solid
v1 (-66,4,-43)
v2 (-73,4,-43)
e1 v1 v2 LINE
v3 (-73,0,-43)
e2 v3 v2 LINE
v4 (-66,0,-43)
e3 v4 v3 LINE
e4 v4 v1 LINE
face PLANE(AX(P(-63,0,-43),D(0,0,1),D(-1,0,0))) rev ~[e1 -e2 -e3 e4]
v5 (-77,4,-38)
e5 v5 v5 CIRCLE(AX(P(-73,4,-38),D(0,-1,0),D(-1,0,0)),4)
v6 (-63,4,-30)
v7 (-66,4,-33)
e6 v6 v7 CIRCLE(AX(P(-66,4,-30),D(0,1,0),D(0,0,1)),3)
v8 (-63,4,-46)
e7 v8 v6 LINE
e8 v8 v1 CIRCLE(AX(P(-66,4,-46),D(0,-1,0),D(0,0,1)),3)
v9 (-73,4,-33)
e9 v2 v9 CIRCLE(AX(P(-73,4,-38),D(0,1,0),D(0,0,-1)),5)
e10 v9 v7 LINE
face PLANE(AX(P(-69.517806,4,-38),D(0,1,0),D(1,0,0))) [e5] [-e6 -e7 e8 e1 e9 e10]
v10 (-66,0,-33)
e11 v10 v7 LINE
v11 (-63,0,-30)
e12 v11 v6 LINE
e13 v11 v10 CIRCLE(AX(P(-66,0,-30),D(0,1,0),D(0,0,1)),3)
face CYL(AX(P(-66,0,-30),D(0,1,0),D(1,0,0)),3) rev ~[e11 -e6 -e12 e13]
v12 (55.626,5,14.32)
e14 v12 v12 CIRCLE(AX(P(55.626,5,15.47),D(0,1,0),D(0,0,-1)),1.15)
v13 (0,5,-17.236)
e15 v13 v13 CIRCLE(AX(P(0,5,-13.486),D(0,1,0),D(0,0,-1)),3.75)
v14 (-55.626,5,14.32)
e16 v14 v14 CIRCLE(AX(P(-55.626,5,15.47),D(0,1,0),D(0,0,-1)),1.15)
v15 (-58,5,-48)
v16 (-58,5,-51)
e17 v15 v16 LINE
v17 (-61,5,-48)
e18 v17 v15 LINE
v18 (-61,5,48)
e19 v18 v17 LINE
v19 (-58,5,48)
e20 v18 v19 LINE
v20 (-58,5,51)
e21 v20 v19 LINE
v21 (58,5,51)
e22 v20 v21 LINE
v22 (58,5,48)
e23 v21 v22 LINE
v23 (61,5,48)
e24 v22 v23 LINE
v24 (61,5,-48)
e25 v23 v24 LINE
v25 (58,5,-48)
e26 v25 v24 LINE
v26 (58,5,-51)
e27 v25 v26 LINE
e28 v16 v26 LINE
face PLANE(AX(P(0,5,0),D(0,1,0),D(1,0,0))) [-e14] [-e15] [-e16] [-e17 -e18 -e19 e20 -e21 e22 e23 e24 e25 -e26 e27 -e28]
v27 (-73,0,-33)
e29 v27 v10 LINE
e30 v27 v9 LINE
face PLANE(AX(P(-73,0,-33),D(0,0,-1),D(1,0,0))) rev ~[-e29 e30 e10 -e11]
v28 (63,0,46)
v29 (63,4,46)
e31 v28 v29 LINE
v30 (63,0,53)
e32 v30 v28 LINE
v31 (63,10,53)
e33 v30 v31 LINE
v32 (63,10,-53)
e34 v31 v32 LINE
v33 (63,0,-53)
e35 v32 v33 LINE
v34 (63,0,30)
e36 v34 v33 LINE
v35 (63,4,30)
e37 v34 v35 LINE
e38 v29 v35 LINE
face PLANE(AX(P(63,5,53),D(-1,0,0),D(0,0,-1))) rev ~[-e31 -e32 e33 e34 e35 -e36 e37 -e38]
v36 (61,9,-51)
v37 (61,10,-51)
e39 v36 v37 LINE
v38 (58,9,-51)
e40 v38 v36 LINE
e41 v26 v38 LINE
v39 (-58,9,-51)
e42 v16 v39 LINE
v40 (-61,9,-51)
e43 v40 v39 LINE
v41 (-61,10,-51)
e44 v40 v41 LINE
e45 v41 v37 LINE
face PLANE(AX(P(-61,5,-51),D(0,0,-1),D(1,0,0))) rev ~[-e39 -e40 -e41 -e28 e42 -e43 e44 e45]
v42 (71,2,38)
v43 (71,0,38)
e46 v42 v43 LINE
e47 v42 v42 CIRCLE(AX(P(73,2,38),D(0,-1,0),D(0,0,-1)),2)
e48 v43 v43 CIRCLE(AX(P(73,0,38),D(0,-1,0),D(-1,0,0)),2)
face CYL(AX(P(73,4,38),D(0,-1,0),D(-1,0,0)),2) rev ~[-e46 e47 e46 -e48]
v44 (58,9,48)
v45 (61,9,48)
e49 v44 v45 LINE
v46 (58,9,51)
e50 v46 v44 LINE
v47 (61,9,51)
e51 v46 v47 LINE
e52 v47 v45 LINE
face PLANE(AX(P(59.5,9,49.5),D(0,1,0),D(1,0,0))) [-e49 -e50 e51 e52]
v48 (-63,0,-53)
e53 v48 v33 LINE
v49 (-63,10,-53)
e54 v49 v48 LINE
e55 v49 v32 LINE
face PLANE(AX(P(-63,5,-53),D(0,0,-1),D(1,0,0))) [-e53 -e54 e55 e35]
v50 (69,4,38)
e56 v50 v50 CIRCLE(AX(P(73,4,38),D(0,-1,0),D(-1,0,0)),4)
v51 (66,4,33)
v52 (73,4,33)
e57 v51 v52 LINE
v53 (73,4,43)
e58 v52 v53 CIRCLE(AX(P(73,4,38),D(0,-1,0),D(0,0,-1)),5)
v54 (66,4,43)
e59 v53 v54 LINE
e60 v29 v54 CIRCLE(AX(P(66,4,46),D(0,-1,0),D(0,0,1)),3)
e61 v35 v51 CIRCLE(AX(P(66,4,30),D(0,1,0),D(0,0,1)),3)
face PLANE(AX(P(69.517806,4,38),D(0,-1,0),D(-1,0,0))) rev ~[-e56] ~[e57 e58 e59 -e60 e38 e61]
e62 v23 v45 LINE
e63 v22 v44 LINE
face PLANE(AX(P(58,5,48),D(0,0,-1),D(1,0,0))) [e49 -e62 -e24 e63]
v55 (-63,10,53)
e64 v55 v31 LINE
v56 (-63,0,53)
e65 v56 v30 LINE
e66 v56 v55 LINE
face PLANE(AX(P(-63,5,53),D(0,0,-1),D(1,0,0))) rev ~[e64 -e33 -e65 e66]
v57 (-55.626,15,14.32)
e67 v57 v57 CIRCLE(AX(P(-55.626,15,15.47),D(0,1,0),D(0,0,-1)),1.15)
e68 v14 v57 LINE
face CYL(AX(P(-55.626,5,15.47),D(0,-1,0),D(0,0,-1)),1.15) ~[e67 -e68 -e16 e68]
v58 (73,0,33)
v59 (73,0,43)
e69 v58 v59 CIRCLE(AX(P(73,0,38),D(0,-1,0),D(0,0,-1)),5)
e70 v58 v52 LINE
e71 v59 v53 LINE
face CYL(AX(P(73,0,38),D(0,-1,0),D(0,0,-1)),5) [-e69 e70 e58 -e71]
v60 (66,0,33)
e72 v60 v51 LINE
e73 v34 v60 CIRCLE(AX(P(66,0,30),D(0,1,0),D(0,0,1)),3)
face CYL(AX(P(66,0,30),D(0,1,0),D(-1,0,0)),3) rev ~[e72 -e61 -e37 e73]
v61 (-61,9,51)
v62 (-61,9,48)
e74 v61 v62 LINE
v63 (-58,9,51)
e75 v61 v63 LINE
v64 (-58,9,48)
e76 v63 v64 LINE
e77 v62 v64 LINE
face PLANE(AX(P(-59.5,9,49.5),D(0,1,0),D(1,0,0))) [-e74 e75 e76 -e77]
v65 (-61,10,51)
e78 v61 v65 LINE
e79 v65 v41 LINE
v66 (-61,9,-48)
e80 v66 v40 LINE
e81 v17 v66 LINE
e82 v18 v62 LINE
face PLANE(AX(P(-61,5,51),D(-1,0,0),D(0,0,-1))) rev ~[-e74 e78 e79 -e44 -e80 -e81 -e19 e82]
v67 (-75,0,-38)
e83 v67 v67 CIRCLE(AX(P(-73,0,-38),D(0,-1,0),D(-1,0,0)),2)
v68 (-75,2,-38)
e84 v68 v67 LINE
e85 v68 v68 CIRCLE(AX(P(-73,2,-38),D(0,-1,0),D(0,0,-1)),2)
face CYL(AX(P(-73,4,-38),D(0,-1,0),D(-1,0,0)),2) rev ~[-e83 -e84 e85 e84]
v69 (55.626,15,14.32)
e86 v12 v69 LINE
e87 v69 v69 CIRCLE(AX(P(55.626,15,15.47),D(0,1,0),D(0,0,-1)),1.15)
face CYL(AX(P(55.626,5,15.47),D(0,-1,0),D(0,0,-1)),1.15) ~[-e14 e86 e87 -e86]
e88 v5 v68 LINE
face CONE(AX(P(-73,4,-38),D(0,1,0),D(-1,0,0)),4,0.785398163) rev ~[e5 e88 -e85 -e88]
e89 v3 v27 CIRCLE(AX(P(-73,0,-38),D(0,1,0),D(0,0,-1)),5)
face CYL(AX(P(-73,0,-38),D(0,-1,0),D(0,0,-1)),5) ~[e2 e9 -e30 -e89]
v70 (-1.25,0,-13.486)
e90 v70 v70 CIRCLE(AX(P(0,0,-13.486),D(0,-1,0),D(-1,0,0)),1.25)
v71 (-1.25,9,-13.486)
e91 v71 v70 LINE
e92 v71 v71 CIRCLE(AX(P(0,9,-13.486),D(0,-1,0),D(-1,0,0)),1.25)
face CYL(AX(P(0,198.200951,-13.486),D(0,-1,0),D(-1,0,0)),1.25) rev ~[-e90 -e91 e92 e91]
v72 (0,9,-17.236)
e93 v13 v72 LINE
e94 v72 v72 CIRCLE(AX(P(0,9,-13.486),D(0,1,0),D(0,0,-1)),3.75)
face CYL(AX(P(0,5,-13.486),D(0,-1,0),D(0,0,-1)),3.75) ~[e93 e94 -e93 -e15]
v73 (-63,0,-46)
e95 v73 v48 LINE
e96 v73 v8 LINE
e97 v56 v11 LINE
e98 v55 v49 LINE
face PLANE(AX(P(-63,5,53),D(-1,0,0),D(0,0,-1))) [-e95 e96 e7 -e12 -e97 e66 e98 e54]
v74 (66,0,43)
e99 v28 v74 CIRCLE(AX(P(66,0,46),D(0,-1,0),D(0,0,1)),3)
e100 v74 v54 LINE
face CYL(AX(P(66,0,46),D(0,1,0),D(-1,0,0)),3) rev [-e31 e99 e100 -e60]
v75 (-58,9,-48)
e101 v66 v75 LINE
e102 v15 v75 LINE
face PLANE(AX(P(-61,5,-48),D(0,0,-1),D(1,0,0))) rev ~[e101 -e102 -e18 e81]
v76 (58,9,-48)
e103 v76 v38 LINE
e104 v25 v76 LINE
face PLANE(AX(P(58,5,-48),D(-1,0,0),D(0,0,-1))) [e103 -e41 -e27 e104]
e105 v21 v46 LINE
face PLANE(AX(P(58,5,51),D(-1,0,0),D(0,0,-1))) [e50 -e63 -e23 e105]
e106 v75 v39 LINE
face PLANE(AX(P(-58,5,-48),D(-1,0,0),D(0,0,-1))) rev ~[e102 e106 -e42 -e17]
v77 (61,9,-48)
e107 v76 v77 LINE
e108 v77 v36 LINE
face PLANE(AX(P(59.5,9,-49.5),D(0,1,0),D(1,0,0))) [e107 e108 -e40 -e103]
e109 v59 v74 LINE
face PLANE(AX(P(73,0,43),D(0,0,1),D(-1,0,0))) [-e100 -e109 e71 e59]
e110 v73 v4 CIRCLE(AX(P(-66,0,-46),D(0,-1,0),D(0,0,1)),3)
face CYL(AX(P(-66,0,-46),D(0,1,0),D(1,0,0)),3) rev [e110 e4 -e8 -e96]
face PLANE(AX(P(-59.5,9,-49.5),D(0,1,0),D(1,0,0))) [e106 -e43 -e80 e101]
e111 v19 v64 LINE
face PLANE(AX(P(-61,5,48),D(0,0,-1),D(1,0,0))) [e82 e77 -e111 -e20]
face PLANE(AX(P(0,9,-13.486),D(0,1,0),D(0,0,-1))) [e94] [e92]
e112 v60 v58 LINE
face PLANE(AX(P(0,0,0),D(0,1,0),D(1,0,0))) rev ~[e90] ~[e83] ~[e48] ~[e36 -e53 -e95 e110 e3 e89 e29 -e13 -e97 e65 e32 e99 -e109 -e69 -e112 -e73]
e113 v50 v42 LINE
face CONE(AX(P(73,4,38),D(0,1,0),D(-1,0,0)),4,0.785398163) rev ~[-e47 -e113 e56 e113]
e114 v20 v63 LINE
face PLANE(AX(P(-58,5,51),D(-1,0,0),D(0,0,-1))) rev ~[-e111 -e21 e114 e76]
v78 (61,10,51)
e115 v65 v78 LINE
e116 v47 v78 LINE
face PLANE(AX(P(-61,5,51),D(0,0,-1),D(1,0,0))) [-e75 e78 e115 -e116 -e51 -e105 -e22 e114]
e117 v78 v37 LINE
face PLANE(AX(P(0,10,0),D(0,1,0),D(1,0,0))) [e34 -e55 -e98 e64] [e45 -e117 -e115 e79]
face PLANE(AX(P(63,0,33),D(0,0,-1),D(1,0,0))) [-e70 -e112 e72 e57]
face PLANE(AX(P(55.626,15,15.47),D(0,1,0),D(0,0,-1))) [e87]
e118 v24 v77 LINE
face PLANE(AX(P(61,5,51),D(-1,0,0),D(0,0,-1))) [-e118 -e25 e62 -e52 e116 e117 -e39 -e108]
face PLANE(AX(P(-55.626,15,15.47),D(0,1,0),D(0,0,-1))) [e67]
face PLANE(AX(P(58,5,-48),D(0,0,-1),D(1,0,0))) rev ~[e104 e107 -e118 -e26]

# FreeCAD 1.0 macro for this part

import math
import FreeCAD as App
import Part
import Sketcher

V = App.Vector
Q = App.Units.Quantity


def edges_at(feature, points):
    """Names of the edges that pass closest to the given points."""
    edges = feature.Shape.Edges
    near = lambda p: min(range(len(edges)), key=lambda i: edges[i].distToShape(Part.Vertex(*p))[0])
    return sorted({f"Edge{near(p) + 1}" for p in points})


def add_polygon(sketch, points):
    """Adds a closed chain of lines whose ends are joined by coincident constraints."""
    first, n = sketch.GeometryCount, len(points)
    for a, b in zip(points, points[1:] + points[:1]):
        sketch.addGeometry(Part.LineSegment(App.Vector(*a, 0), App.Vector(*b, 0)), False)
    for i in range(n):
        sketch.addConstraint(Sketcher.Constraint("Coincident", first + i, 2, first + (i + 1) % n, 1))

doc = App.newDocument("Part")
body = doc.addObject("PartDesign::Body", "Body")

# Sketch on XZ plane
sketch1 = doc.addObject("Sketcher::SketchObject", "Sketch")
body.addObject(sketch1)
sketch1.AttachmentSupport = (doc.XZ_Plane, [""])
sketch1.MapMode = "FlatFace"
add_polygon(sketch1, [(-63, -53), (-63, 53), (63, 53), (63, -53)])  # lines 0-3
sketch1.addConstraint([
    Sketcher.Constraint("Vertical", 0),
    Sketcher.Constraint("Horizontal", 1),
    Sketcher.Constraint("Vertical", 2),
    Sketcher.Constraint("Horizontal", 3),
    Sketcher.Constraint("Symmetric", 0, 2, 2, 2, -1, 1),
    Sketcher.Constraint("DistanceX", 1, 1, 1, 2, Q("126 mm")),
    Sketcher.Constraint("DistanceY", 0, 1, 0, 2, Q("106 mm")),
])
pad1 = doc.addObject("PartDesign::Pad", "Pad")
body.addObject(pad1)
pad1.Profile = sketch1
pad1.Length = 5
pad1.Reversed = True

# Sketch on XZ plane
sketch2 = doc.addObject("Sketcher::SketchObject", "Sketch001")
body.addObject(sketch2)
sketch2.AttachmentSupport = (doc.XZ_Plane, [""])
sketch2.MapMode = "FlatFace"
sketch2.AttachmentOffset = App.Placement(V(0, 0, -5), App.Rotation())
add_polygon(sketch2, [(-63, -53), (-63, 53), (63, 53), (63, -53)])  # lines 0-3
add_polygon(sketch2, [(61, 51), (-61, 51), (-61, -51), (61, -51)])  # lines 4-7
sketch2.addConstraint([
    Sketcher.Constraint("Vertical", 0),
    Sketcher.Constraint("Horizontal", 1),
    Sketcher.Constraint("Vertical", 2),
    Sketcher.Constraint("Horizontal", 3),
    Sketcher.Constraint("Horizontal", 4),
    Sketcher.Constraint("Vertical", 5),
    Sketcher.Constraint("Horizontal", 6),
    Sketcher.Constraint("Vertical", 7),
    Sketcher.Constraint("Symmetric", 0, 2, 2, 2, -1, 1),
    Sketcher.Constraint("Symmetric", 4, 2, 6, 2, -1, 1),
    Sketcher.Constraint("DistanceX", 1, 1, 1, 2, Q("126 mm")),
    Sketcher.Constraint("DistanceX", 4, 2, 4, 1, Q("122 mm")),
    Sketcher.Constraint("DistanceY", 0, 1, 0, 2, Q("106 mm")),
    Sketcher.Constraint("DistanceY", 5, 2, 5, 1, Q("102 mm")),
])
pad2 = doc.addObject("PartDesign::Pad", "Pad001")
body.addObject(pad2)
pad2.Profile = sketch2
pad2.Length = 5
pad2.Reversed = True

# Sketch on XZ plane
sketch3 = doc.addObject("Sketcher::SketchObject", "Sketch002")
body.addObject(sketch3)
sketch3.AttachmentSupport = (doc.XZ_Plane, [""])
sketch3.MapMode = "FlatFace"
sketch3.addGeometry([
    Part.LineSegment(V(-63, -43, 0), V(-73, -43, 0)),  # 0
    Part.ArcOfCircle(Part.Circle(V(-73, -38, 0), V(0, 0, 1), 5), math.radians(90), math.radians(270)),  # 1
    Part.LineSegment(V(-73, -33, 0), V(-63, -33, 0)),  # 2
    Part.LineSegment(V(-63, -33, 0), V(-63, -43, 0)),  # 3
    Part.LineSegment(V(73, 33, 0), V(63, 33, 0)),  # 4
    Part.LineSegment(V(63, 33, 0), V(63, 43, 0)),  # 5
    Part.LineSegment(V(63, 43, 0), V(73, 43, 0)),  # 6
    Part.ArcOfCircle(Part.Circle(V(73, 38, 0), V(0, 0, 1), 5), math.radians(-90), math.radians(90)),  # 7
], False)
sketch3.addConstraint([
    Sketcher.Constraint("Tangent", 0, 2, 1, 2),
    Sketcher.Constraint("Tangent", 1, 1, 2, 1),
    Sketcher.Constraint("Coincident", 2, 2, 3, 1),
    Sketcher.Constraint("Coincident", 3, 2, 0, 1),
    Sketcher.Constraint("Coincident", 4, 2, 5, 1),
    Sketcher.Constraint("Coincident", 5, 2, 6, 1),
    Sketcher.Constraint("Tangent", 6, 2, 7, 2),
    Sketcher.Constraint("Tangent", 7, 1, 4, 1),
    Sketcher.Constraint("Horizontal", 0),
    Sketcher.Constraint("Horizontal", 2),
    Sketcher.Constraint("Vertical", 3),
    Sketcher.Constraint("Horizontal", 4),
    Sketcher.Constraint("Vertical", 5),
    Sketcher.Constraint("Horizontal", 6),
    Sketcher.Constraint("Equal", 1, 7),
    Sketcher.Constraint("Symmetric", 1, 3, 7, 3, -1, 1),
    Sketcher.Constraint("Equal", 2, 4),
    Sketcher.Constraint("Equal", 6, 3),
    Sketcher.Constraint("Radius", 1, Q("5 mm")),
    Sketcher.Constraint("DistanceX", 1, 3, -1, 1, Q("73 mm")),
    Sketcher.Constraint("DistanceY", 1, 3, -1, 1, Q("38 mm")),
])
pad3 = doc.addObject("PartDesign::Pad", "Pad002")
body.addObject(pad3)
pad3.Profile = sketch3
pad3.Length = 4
pad3.Reversed = True
doc.recompute()

fillet = doc.addObject("PartDesign::Fillet", "Fillet")
body.addObject(fillet)
fillet.Base = (pad3, edges_at(pad3, [
    (-63, 2, -33),
    (-63, 2, -43),
    (63, 2, 33),
    (63, 2, 43),
]))
fillet.Radius = 3

# Sketch on XZ plane
sketch4 = doc.addObject("Sketcher::SketchObject", "Sketch003")
body.addObject(sketch4)
sketch4.AttachmentSupport = (doc.XZ_Plane, [""])
sketch4.MapMode = "FlatFace"
sketch4.AttachmentOffset = App.Placement(V(0, 0, -4), App.Rotation())
sketch4.addGeometry([
    Part.Circle(V(-73, -38, 0), V(0, 0, 1), 2),
    Part.Circle(V(73, 38, 0), V(0, 0, 1), 2),
], False)
sketch4.addConstraint([
    Sketcher.Constraint("Equal", 0, 1),
    Sketcher.Constraint("Symmetric", 0, 3, 1, 3, -1, 1),
    Sketcher.Constraint("Diameter", 0, Q("4 mm")),
    Sketcher.Constraint("DistanceX", 0, 3, -1, 1, Q("73 mm")),
    Sketcher.Constraint("DistanceY", 0, 3, -1, 1, Q("38 mm")),
])
doc.recompute()
hole = doc.addObject("PartDesign::Hole", "Hole")
body.addObject(hole)
hole.Profile = sketch4
hole.ThreadType = "None"
hole.Diameter = 4
hole.DepthType = "ThroughAll"
hole.HoleCutType = "Countersink"
hole.HoleCutDiameter = 8
hole.HoleCutCountersinkAngle = 90
hole.Reversed = True

# Sketch on XZ plane
sketch5 = doc.addObject("Sketcher::SketchObject", "Sketch004")
body.addObject(sketch5)
sketch5.AttachmentSupport = (doc.XZ_Plane, [""])
sketch5.MapMode = "FlatFace"
sketch5.AttachmentOffset = App.Placement(V(0, 0, -5), App.Rotation())
sketch5.addGeometry([
    Part.Circle(V(-55.6, 15.5, 0), V(0, 0, 1), 1.1),
    Part.Circle(V(55.6, 15.5, 0), V(0, 0, 1), 1.1),
], False)
sketch5.addConstraint([
    Sketcher.Constraint("Equal", 0, 1),
    Sketcher.Constraint("Symmetric", 0, 3, 1, 3, -2),
    Sketcher.Constraint("Diameter", 0, Q("2.3 mm")),
    Sketcher.Constraint("DistanceY", -1, 1, 0, 3, Q("15.47 mm")),
    Sketcher.Constraint("DistanceX", 0, 3, -1, 1, Q("55.626 mm")),
])
pad4 = doc.addObject("PartDesign::Pad", "Pad003")
body.addObject(pad4)
pad4.Profile = sketch5
pad4.Length = 10
pad4.Reversed = True

# Sketch on XZ plane
sketch6 = doc.addObject("Sketcher::SketchObject", "Sketch005")
body.addObject(sketch6)
sketch6.AttachmentSupport = (doc.XZ_Plane, [""])
sketch6.MapMode = "FlatFace"
sketch6.AttachmentOffset = App.Placement(V(0, 0, -5), App.Rotation())
add_polygon(sketch6, [(-61, -51), (-61, -48), (-58, -48), (-58, -51)])  # lines 0-3
add_polygon(sketch6, [(58, -51), (58, -48), (61, -48), (61, -51)])  # lines 4-7
add_polygon(sketch6, [(-61, 48), (-61, 51), (-58, 51), (-58, 48)])  # lines 8-11
add_polygon(sketch6, [(58, 48), (58, 51), (61, 51), (61, 48)])  # lines 12-15
sketch6.addConstraint([
    Sketcher.Constraint("Vertical", 0),
    Sketcher.Constraint("Horizontal", 1),
    Sketcher.Constraint("Vertical", 2),
    Sketcher.Constraint("Horizontal", 3),
    Sketcher.Constraint("Vertical", 4),
    Sketcher.Constraint("Horizontal", 5),
    Sketcher.Constraint("Vertical", 6),
    Sketcher.Constraint("Horizontal", 7),
    Sketcher.Constraint("Vertical", 8),
    Sketcher.Constraint("Horizontal", 9),
    Sketcher.Constraint("Vertical", 10),
    Sketcher.Constraint("Horizontal", 11),
    Sketcher.Constraint("Vertical", 12),
    Sketcher.Constraint("Horizontal", 13),
    Sketcher.Constraint("Vertical", 14),
    Sketcher.Constraint("Horizontal", 15),
    Sketcher.Constraint("Symmetric", 6, 2, 8, 2, -1, 1),
    Sketcher.Constraint("Symmetric", 4, 2, 10, 2, -1, 1),
    Sketcher.Constraint("Symmetric", 2, 2, 12, 2, -1, 1),
    Sketcher.Constraint("Symmetric", 0, 2, 14, 2, -1, 1),
    Sketcher.Constraint("Symmetric", 1, 2, 4, 2, -2),
    Sketcher.Constraint("Symmetric", 3, 2, 6, 2, -2),
    Sketcher.Constraint("Equal", 15, 0),
    Sketcher.Constraint("DistanceX", 1, 1, 1, 2, Q("3 mm")),
    Sketcher.Constraint("DistanceX", 0, 2, -1, 1, Q("61 mm")),
    Sketcher.Constraint("DistanceY", 0, 2, -1, 1, Q("48 mm")),
])
pad5 = doc.addObject("PartDesign::Pad", "Pad004")
body.addObject(pad5)
pad5.Profile = sketch6
pad5.Length = 4
pad5.Reversed = True

# Sketch on XZ plane
sketch7 = doc.addObject("Sketcher::SketchObject", "Sketch006")
body.addObject(sketch7)
sketch7.AttachmentSupport = (doc.XZ_Plane, [""])
sketch7.MapMode = "FlatFace"
sketch7.AttachmentOffset = App.Placement(V(0, 0, -5), App.Rotation())
sketch7.addGeometry(Part.Circle(V(0, -13.5, 0), V(0, 0, 1), 3.8), False)
sketch7.addConstraint([
    Sketcher.Constraint("PointOnObject", 0, 3, -2),
    Sketcher.Constraint("Diameter", 0, Q("7.5 mm")),
    Sketcher.Constraint("DistanceY", 0, 3, -1, 1, Q("13.486 mm")),
])
pad6 = doc.addObject("PartDesign::Pad", "Pad005")
body.addObject(pad6)
pad6.Profile = sketch7
pad6.Length = 4
pad6.Reversed = True

# Sketch on XZ plane
sketch8 = doc.addObject("Sketcher::SketchObject", "Sketch007")
body.addObject(sketch8)
sketch8.AttachmentSupport = (doc.XZ_Plane, [""])
sketch8.MapMode = "FlatFace"
sketch8.AttachmentOffset = App.Placement(V(0, 0, -9), App.Rotation())
sketch8.addGeometry(Part.Circle(V(0, -13.5, 0), V(0, 0, 1), 1.2), False)
sketch8.addConstraint([
    Sketcher.Constraint("PointOnObject", 0, 3, -2),
    Sketcher.Constraint("Diameter", 0, Q("2.5 mm")),
    Sketcher.Constraint("DistanceY", 0, 3, -1, 1, Q("13.486 mm")),
])
doc.recompute()
hole2 = doc.addObject("PartDesign::Hole", "Hole001")
body.addObject(hole2)
hole2.Profile = sketch8
hole2.ThreadType = "None"
hole2.Diameter = 2.5
hole2.DepthType = "ThroughAll"
hole2.Reversed = True

doc.recompute()
